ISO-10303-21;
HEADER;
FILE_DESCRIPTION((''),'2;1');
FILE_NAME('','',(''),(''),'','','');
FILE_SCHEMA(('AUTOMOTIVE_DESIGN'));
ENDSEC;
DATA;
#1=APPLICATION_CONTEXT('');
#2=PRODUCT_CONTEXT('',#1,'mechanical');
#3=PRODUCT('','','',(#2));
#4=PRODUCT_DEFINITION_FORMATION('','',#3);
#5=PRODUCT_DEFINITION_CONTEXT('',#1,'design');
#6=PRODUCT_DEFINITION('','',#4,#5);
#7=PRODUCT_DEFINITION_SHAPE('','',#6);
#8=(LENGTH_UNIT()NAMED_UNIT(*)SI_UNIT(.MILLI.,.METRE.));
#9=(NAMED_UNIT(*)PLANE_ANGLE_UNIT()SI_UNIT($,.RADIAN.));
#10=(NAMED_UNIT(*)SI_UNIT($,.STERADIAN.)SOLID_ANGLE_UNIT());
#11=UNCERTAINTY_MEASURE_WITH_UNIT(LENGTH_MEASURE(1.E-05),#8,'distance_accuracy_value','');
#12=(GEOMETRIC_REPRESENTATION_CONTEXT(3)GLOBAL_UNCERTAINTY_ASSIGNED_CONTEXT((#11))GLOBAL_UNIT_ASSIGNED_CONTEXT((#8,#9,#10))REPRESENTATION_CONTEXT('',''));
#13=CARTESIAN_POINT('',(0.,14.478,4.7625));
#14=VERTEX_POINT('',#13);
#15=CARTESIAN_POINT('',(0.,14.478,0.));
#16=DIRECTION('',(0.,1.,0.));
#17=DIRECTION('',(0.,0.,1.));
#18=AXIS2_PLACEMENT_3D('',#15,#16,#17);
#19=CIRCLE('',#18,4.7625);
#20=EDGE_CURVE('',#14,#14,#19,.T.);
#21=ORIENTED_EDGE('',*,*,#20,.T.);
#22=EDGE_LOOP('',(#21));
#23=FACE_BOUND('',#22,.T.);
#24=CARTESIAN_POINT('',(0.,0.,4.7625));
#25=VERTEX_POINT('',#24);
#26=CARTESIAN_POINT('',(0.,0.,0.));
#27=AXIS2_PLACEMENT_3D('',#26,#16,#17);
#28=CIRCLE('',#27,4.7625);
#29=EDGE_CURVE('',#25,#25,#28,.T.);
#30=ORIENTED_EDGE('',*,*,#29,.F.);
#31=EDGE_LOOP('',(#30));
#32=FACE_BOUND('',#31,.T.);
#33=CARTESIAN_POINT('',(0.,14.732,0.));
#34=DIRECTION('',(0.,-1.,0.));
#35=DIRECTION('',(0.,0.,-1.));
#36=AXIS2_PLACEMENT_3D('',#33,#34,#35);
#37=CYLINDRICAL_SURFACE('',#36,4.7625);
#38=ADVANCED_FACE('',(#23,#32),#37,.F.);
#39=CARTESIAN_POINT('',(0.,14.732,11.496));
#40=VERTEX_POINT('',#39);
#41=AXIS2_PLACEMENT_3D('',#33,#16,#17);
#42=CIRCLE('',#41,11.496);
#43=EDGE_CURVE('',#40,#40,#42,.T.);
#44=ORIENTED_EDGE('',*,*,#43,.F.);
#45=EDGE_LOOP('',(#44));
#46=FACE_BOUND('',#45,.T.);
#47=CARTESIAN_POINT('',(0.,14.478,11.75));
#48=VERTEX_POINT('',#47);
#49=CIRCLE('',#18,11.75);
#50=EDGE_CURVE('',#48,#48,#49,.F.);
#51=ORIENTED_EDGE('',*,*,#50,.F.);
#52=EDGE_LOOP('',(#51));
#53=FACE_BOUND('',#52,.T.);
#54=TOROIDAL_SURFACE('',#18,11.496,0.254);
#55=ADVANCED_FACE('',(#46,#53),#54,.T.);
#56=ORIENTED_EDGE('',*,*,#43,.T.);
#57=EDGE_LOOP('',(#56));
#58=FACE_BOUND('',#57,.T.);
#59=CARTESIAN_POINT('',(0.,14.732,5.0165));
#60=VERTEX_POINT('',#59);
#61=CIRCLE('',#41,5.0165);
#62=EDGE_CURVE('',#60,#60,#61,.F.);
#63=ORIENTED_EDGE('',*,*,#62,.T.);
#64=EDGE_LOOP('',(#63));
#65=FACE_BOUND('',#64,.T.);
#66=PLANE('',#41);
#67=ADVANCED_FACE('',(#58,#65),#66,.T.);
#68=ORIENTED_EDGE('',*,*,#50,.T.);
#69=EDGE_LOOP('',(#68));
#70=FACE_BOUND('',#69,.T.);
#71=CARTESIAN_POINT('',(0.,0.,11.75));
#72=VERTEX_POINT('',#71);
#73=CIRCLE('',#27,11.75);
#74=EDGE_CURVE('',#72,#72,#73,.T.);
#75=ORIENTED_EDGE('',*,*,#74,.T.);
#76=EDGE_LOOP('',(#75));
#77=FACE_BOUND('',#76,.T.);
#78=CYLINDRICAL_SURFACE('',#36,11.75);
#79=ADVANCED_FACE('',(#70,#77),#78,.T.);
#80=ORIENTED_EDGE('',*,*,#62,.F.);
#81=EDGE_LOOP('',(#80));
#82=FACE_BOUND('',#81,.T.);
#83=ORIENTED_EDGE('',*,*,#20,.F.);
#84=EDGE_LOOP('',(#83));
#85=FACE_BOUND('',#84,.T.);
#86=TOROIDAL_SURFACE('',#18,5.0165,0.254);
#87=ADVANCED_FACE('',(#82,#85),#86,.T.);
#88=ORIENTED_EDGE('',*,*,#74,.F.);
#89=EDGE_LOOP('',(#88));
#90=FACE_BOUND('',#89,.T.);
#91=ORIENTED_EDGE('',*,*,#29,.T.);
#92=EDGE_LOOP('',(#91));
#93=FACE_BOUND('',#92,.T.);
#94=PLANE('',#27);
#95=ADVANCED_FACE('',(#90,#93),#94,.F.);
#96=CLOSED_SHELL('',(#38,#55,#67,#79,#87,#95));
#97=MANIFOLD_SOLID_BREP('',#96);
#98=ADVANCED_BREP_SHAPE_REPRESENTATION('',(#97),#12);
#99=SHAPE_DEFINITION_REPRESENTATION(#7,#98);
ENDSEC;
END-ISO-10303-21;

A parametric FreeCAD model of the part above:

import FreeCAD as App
import Part
import Sketcher

V = App.Vector
Q = App.Units.Quantity


def edges_at(feature, points):
    """Names of the edges that pass closest to the given points."""
    edges = feature.Shape.Edges
    near = lambda p: min(range(len(edges)), key=lambda i: edges[i].distToShape(Part.Vertex(*p))[0])
    return sorted({f"Edge{near(p) + 1}" for p in points})

doc = App.newDocument("Part")
body = doc.addObject("PartDesign::Body", "Body")

sketch1 = doc.addObject("Sketcher::SketchObject", "Sketch")
body.addObject(sketch1)
sketch1.AttachmentSupport = (doc.XZ_Plane, [""])
sketch1.MapMode = "FlatFace"
sketch1.addGeometry([
    Part.Circle(V(0, 0, 0), V(0, 0, 1), 11.8),
    Part.Circle(V(0, 0, 0), V(0, 0, 1), 4.8),
], False)
sketch1.addConstraint([
    Sketcher.Constraint("Coincident", 0, 3, -1, 1),
    Sketcher.Constraint("Coincident", 1, 3, -1, 1),
    Sketcher.Constraint("Diameter", 1, Q("0.375 in")),
    Sketcher.Constraint("Diameter", 0, 23.5),
])
pad1 = doc.addObject("PartDesign::Pad", "Pad")
body.addObject(pad1)
pad1.Profile = sketch1
pad1.Length = Q("0.58 in")
pad1.Reversed = True
doc.recompute()

fillet = doc.addObject("PartDesign::Fillet", "Fillet")
body.addObject(fillet)
fillet.Base = (pad1, edges_at(pad1, [(0, 14.732, -11.75), (0, 14.732, -4.763)]))
fillet.Radius = Q("0.01 in")

doc.recompute()
